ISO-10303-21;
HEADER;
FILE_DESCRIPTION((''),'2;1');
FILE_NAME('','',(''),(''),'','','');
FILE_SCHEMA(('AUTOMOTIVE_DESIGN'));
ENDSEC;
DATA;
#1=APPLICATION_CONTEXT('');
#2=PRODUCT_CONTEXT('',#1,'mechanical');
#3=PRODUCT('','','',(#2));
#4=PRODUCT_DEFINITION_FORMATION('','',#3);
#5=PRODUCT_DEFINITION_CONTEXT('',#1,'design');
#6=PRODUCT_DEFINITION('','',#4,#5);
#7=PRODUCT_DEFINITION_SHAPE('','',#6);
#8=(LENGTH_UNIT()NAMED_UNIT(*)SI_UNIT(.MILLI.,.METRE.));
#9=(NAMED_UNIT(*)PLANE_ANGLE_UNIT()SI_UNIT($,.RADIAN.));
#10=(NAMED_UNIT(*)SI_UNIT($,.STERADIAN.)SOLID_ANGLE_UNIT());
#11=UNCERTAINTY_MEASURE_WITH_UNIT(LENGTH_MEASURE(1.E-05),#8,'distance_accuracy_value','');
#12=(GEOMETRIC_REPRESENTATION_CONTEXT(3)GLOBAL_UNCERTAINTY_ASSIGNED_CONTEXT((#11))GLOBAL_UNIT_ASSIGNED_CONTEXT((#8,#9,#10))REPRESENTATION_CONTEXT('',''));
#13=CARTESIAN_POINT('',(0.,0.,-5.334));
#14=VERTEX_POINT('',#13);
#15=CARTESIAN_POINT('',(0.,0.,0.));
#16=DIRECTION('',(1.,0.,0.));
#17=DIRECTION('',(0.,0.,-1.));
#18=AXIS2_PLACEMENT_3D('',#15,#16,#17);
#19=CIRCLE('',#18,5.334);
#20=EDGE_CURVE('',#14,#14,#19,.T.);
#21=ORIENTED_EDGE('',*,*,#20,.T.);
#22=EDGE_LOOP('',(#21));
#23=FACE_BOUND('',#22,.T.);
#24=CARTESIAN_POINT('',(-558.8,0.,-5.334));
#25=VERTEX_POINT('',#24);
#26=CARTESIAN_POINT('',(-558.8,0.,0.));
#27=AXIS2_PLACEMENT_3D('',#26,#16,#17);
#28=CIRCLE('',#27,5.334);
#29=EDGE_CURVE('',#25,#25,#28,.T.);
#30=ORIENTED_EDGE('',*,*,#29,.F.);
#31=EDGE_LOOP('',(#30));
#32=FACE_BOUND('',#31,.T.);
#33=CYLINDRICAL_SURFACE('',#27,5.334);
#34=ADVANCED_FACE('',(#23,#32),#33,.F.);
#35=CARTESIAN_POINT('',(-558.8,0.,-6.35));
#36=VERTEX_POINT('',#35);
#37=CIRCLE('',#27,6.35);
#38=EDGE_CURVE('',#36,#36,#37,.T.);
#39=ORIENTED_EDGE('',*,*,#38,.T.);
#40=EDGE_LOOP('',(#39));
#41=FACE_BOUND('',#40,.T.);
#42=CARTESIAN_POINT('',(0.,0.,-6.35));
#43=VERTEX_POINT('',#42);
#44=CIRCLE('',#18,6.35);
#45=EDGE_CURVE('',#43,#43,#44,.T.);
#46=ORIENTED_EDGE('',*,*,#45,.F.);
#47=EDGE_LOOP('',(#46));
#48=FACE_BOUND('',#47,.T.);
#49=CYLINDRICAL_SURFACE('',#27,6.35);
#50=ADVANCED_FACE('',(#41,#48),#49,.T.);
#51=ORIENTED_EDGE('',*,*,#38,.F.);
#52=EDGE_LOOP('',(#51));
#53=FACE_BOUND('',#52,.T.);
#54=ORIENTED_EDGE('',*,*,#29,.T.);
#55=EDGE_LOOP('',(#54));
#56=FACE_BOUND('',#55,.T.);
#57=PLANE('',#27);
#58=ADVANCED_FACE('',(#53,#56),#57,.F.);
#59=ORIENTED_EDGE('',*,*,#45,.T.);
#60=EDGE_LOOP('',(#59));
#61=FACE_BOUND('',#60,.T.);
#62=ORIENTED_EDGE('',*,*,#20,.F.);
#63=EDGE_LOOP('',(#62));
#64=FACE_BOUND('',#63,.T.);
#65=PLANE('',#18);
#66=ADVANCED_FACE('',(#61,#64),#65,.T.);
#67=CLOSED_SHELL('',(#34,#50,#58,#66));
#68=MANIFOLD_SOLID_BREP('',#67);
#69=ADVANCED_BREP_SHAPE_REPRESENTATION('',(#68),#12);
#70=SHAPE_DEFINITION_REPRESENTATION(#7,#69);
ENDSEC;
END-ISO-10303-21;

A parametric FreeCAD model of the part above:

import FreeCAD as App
import Part
import Sketcher

V = App.Vector
Q = App.Units.Quantity

doc = App.newDocument("Part")
body = doc.addObject("PartDesign::Body", "Body")

sketch1 = body.newObject("Sketcher::SketchObject", "Sketch")
sketch1.AttachmentSupport = (doc.getObject("YZ_Plane"), [""])
sketch1.MapMode = "FlatFace"
sketch1.addGeometry([
    Part.Circle(V(0, 0, 0), V(0, 0, 1), 6),
    Part.Circle(V(0, 0, 0), V(0, 0, 1), 5),
], False)
sketch1.addConstraint([
    Sketcher.Constraint("Coincident", 0, 3, -1, 1),
    Sketcher.Constraint("Coincident", 1, 3, -1, 1),
    Sketcher.Constraint("Diameter", 0, Q("0.5 in")),
    Sketcher.Constraint("Diameter", 1, Q("0.42 in")),
])
pad1 = body.newObject("PartDesign::Pad", "Pad")
pad1.Profile = sketch1
pad1.Length = Q("22 in")
pad1.Reversed = True

doc.recompute()
